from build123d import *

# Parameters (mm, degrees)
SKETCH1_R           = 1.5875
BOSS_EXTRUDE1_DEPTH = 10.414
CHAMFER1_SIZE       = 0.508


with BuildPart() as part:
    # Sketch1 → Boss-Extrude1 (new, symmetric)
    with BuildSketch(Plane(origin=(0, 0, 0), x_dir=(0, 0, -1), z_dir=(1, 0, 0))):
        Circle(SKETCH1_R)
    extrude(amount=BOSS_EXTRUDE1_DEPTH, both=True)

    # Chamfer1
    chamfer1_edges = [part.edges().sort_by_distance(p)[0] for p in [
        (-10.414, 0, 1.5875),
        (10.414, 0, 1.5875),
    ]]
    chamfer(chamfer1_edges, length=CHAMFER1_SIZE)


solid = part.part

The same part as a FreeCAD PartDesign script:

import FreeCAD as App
import Part
import Sketcher
Q = App.Units.Quantity


def edges_at(feature, points):
    """Names of the edges that pass closest to the given points."""
    edges = feature.Shape.Edges
    near = lambda p: min(range(len(edges)), key=lambda i: edges[i].distToShape(Part.Vertex(*p))[0])
    return sorted({f"Edge{near(p) + 1}" for p in points})

doc = App.newDocument("Part")
body = doc.addObject("PartDesign::Body", "Body")

# Sketch on YZ plane
sketch1 = doc.addObject("Sketcher::SketchObject", "Sketch")
body.addObject(sketch1)
sketch1.AttachmentSupport = (doc.YZ_Plane, [""])
sketch1.MapMode = "FlatFace"
sketch1.addGeometry(Part.Circle(App.Vector(0, 0, 0), App.Vector(0, 0, 1), 1.6), False)
sketch1.addConstraint([
    Sketcher.Constraint("Coincident", 0, 3, -1, 1),
    Sketcher.Constraint("Diameter", 0, Q("0.125 in")),
])
pad1 = doc.addObject("PartDesign::Pad", "Pad")
body.addObject(pad1)
pad1.Profile = sketch1
pad1.Length = Q("0.82 in")
pad1.Midplane = True
doc.recompute()

chamfer = doc.addObject("PartDesign::Chamfer", "Chamfer")
body.addObject(chamfer)
chamfer.Base = (pad1, edges_at(pad1, [(-10.414, 0, 1.587), (10.414, 0, 1.587)]))
chamfer.Size = Q("0.02 in")

doc.recompute()
